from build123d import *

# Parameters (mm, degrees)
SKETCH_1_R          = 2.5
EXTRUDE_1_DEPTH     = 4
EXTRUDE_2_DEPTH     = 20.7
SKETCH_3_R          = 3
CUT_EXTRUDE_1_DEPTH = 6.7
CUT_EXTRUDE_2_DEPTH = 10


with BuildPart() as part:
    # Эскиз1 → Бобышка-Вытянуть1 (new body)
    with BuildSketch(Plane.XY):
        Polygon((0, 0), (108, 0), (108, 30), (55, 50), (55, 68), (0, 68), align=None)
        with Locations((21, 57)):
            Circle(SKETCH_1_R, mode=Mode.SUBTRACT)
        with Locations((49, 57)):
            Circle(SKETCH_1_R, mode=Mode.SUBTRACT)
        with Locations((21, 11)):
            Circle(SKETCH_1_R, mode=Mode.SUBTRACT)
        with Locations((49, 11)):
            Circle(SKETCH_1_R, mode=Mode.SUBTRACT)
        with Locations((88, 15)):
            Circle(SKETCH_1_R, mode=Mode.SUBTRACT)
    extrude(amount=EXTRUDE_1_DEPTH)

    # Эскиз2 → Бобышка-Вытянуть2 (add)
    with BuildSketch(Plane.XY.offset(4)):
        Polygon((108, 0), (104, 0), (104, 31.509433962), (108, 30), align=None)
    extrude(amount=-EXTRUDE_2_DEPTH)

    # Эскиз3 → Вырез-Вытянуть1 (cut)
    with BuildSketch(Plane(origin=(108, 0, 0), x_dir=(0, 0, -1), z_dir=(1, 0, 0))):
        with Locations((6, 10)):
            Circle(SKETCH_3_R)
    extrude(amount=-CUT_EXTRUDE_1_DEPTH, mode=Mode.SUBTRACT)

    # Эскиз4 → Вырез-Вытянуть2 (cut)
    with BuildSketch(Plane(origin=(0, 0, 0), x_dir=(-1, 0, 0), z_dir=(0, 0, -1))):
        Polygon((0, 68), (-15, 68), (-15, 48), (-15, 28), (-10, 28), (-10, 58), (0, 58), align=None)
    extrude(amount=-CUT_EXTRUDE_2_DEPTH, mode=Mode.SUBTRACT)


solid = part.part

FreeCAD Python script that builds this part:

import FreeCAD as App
import Part
import Sketcher
Q = App.Units.Quantity


def add_polygon(sketch, points):
    """Adds a closed chain of lines whose ends are joined by coincident constraints."""
    first, n = sketch.GeometryCount, len(points)
    for a, b in zip(points, points[1:] + points[:1]):
        sketch.addGeometry(Part.LineSegment(App.Vector(*a, 0), App.Vector(*b, 0)), False)
    for i in range(n):
        sketch.addConstraint(Sketcher.Constraint("Coincident", first + i, 2, first + (i + 1) % n, 1))

doc = App.newDocument("Part")
body = doc.addObject("PartDesign::Body", "Body")

sketch1 = doc.addObject("Sketcher::SketchObject", "Sketch")
body.addObject(sketch1)
sketch1.AttachmentSupport = (doc.XY_Plane, [""])
sketch1.MapMode = "FlatFace"
add_polygon(sketch1, [(0, 0), (108, 0), (108, 30), (55, 50), (55, 68), (0, 68)])
sketch1.addGeometry(Part.Circle(App.Vector(21, 11, 0), App.Vector(0, 0, 1), 2.5), False)
sketch1.addGeometry(Part.Circle(App.Vector(49, 11, 0), App.Vector(0, 0, 1), 2.5), False)
sketch1.addGeometry(Part.Circle(App.Vector(88, 15, 0), App.Vector(0, 0, 1), 2.5), False)
sketch1.addGeometry(Part.Circle(App.Vector(21, 57, 0), App.Vector(0, 0, 1), 2.5), False)
sketch1.addGeometry(Part.Circle(App.Vector(49, 57, 0), App.Vector(0, 0, 1), 2.5), False)
sketch1.addConstraint([
    Sketcher.Constraint("Horizontal", 0),
    Sketcher.Constraint("Vertical", 1),
    Sketcher.Constraint("Vertical", 3),
    Sketcher.Constraint("Horizontal", 4),
    Sketcher.Constraint("Vertical", 5),
    Sketcher.Constraint("Coincident", 5, 2, -1, 1),
    Sketcher.Constraint("Equal", 6, 7),
    Sketcher.Constraint("Equal", 7, 8),
    Sketcher.Constraint("Equal", 8, 9),
    Sketcher.Constraint("Equal", 9, 10),
    Sketcher.Constraint("Horizontal", 6, 3, 7, 3),
    Sketcher.Constraint("Horizontal", 9, 3, 10, 3),
    Sketcher.Constraint("Vertical", 6, 3, 9, 3),
    Sketcher.Constraint("Vertical", 7, 3, 10, 3),
    Sketcher.Constraint("Diameter", 6, Q("5 mm")),
    Sketcher.Constraint("DistanceX", 0, 1, 0, 2, Q("108 mm")),
    Sketcher.Constraint("DistanceX", 4, 2, 4, 1, Q("55 mm")),
    Sketcher.Constraint("DistanceY", 1, 1, 1, 2, Q("30 mm")),
    Sketcher.Constraint("DistanceY", 3, 1, 3, 2, Q("18 mm")),
    Sketcher.Constraint("DistanceY", 5, 2, 5, 1, Q("68 mm")),
    Sketcher.Constraint("DistanceX", -1, 1, 6, 3, Q("21 mm")),
    Sketcher.Constraint("DistanceY", -1, 1, 6, 3, Q("11 mm")),
    Sketcher.Constraint("DistanceX", -1, 1, 7, 3, Q("49 mm")),
    Sketcher.Constraint("DistanceX", -1, 1, 8, 3, Q("88 mm")),
    Sketcher.Constraint("DistanceY", -1, 1, 8, 3, Q("15 mm")),
    Sketcher.Constraint("DistanceY", -1, 1, 9, 3, Q("57 mm")),
])
pad1 = doc.addObject("PartDesign::Pad", "Pad")
body.addObject(pad1)
pad1.Profile = sketch1
pad1.Length = 4

sketch2 = doc.addObject("Sketcher::SketchObject", "Sketch001")
body.addObject(sketch2)
sketch2.AttachmentSupport = (doc.XY_Plane, [""])
sketch2.MapMode = "FlatFace"
sketch2.AttachmentOffset = App.Placement(App.Vector(0, 0, 4), App.Rotation())
add_polygon(sketch2, [(104, 0), (108, 0), (108, 30), (104, 31.5)])
sketch2.addConstraint([
    Sketcher.Constraint("Horizontal", 0),
    Sketcher.Constraint("Vertical", 1),
    Sketcher.Constraint("Vertical", 3),
    Sketcher.Constraint("PointOnObject", 0, 2, -1),
    Sketcher.Constraint("DistanceX", 0, 1, 0, 2, Q("4 mm")),
    Sketcher.Constraint("DistanceY", 1, 1, 1, 2, Q("30 mm")),
    Sketcher.Constraint("DistanceX", -1, 1, 0, 2, Q("108 mm")),
    Sketcher.Constraint("DistanceY", 3, 2, 3, 1, Q("31.509434 mm")),
])
pad2 = doc.addObject("PartDesign::Pad", "Pad001")
body.addObject(pad2)
pad2.Profile = sketch2
pad2.Length = 20.7
pad2.Reversed = True

sketch3 = doc.addObject("Sketcher::SketchObject", "Sketch002")
body.addObject(sketch3)
sketch3.AttachmentSupport = (doc.YZ_Plane, [""])
sketch3.MapMode = "FlatFace"
sketch3.AttachmentOffset = App.Placement(App.Vector(0, 0, 108), App.Rotation())
sketch3.addGeometry(Part.Circle(App.Vector(10, -6, 0), App.Vector(0, 0, 1), 3), False)
sketch3.addConstraint([
    Sketcher.Constraint("Diameter", 0, Q("6 mm")),
    Sketcher.Constraint("DistanceX", -1, 1, 0, 3, Q("10 mm")),
    Sketcher.Constraint("DistanceY", 0, 3, -1, 1, Q("6 mm")),
])
pocket1 = doc.addObject("PartDesign::Pocket", "Pocket")
body.addObject(pocket1)
pocket1.Profile = sketch3
pocket1.Length = 6.7

sketch4 = doc.addObject("Sketcher::SketchObject", "Sketch003")
body.addObject(sketch4)
sketch4.AttachmentSupport = (doc.XY_Plane, [""])
sketch4.MapMode = "FlatFace"
add_polygon(sketch4, [(0, 68), (15, 68), (15, 28), (10, 28), (10, 58), (0, 58)])
sketch4.addConstraint([
    Sketcher.Constraint("Horizontal", 0),
    Sketcher.Constraint("Vertical", 1),
    Sketcher.Constraint("Horizontal", 2),
    Sketcher.Constraint("Vertical", 3),
    Sketcher.Constraint("Horizontal", 4),
    Sketcher.Constraint("Vertical", 5),
    Sketcher.Constraint("PointOnObject", 4, 2, -2),
    Sketcher.Constraint("Equal", 4, 5),
    Sketcher.Constraint("DistanceX", 0, 1, 0, 2, Q("15 mm")),
    Sketcher.Constraint("DistanceX", 2, 2, 2, 1, Q("5 mm")),
    Sketcher.Constraint("DistanceY", 1, 2, 1, 1, Q("40 mm")),
    Sketcher.Constraint("DistanceY", -1, 1, 0, 2, Q("68 mm")),
])
pocket2 = doc.addObject("PartDesign::Pocket", "Pocket001")
body.addObject(pocket2)
pocket2.Profile = sketch4
pocket2.Length = 10
pocket2.Reversed = True

doc.recompute()
